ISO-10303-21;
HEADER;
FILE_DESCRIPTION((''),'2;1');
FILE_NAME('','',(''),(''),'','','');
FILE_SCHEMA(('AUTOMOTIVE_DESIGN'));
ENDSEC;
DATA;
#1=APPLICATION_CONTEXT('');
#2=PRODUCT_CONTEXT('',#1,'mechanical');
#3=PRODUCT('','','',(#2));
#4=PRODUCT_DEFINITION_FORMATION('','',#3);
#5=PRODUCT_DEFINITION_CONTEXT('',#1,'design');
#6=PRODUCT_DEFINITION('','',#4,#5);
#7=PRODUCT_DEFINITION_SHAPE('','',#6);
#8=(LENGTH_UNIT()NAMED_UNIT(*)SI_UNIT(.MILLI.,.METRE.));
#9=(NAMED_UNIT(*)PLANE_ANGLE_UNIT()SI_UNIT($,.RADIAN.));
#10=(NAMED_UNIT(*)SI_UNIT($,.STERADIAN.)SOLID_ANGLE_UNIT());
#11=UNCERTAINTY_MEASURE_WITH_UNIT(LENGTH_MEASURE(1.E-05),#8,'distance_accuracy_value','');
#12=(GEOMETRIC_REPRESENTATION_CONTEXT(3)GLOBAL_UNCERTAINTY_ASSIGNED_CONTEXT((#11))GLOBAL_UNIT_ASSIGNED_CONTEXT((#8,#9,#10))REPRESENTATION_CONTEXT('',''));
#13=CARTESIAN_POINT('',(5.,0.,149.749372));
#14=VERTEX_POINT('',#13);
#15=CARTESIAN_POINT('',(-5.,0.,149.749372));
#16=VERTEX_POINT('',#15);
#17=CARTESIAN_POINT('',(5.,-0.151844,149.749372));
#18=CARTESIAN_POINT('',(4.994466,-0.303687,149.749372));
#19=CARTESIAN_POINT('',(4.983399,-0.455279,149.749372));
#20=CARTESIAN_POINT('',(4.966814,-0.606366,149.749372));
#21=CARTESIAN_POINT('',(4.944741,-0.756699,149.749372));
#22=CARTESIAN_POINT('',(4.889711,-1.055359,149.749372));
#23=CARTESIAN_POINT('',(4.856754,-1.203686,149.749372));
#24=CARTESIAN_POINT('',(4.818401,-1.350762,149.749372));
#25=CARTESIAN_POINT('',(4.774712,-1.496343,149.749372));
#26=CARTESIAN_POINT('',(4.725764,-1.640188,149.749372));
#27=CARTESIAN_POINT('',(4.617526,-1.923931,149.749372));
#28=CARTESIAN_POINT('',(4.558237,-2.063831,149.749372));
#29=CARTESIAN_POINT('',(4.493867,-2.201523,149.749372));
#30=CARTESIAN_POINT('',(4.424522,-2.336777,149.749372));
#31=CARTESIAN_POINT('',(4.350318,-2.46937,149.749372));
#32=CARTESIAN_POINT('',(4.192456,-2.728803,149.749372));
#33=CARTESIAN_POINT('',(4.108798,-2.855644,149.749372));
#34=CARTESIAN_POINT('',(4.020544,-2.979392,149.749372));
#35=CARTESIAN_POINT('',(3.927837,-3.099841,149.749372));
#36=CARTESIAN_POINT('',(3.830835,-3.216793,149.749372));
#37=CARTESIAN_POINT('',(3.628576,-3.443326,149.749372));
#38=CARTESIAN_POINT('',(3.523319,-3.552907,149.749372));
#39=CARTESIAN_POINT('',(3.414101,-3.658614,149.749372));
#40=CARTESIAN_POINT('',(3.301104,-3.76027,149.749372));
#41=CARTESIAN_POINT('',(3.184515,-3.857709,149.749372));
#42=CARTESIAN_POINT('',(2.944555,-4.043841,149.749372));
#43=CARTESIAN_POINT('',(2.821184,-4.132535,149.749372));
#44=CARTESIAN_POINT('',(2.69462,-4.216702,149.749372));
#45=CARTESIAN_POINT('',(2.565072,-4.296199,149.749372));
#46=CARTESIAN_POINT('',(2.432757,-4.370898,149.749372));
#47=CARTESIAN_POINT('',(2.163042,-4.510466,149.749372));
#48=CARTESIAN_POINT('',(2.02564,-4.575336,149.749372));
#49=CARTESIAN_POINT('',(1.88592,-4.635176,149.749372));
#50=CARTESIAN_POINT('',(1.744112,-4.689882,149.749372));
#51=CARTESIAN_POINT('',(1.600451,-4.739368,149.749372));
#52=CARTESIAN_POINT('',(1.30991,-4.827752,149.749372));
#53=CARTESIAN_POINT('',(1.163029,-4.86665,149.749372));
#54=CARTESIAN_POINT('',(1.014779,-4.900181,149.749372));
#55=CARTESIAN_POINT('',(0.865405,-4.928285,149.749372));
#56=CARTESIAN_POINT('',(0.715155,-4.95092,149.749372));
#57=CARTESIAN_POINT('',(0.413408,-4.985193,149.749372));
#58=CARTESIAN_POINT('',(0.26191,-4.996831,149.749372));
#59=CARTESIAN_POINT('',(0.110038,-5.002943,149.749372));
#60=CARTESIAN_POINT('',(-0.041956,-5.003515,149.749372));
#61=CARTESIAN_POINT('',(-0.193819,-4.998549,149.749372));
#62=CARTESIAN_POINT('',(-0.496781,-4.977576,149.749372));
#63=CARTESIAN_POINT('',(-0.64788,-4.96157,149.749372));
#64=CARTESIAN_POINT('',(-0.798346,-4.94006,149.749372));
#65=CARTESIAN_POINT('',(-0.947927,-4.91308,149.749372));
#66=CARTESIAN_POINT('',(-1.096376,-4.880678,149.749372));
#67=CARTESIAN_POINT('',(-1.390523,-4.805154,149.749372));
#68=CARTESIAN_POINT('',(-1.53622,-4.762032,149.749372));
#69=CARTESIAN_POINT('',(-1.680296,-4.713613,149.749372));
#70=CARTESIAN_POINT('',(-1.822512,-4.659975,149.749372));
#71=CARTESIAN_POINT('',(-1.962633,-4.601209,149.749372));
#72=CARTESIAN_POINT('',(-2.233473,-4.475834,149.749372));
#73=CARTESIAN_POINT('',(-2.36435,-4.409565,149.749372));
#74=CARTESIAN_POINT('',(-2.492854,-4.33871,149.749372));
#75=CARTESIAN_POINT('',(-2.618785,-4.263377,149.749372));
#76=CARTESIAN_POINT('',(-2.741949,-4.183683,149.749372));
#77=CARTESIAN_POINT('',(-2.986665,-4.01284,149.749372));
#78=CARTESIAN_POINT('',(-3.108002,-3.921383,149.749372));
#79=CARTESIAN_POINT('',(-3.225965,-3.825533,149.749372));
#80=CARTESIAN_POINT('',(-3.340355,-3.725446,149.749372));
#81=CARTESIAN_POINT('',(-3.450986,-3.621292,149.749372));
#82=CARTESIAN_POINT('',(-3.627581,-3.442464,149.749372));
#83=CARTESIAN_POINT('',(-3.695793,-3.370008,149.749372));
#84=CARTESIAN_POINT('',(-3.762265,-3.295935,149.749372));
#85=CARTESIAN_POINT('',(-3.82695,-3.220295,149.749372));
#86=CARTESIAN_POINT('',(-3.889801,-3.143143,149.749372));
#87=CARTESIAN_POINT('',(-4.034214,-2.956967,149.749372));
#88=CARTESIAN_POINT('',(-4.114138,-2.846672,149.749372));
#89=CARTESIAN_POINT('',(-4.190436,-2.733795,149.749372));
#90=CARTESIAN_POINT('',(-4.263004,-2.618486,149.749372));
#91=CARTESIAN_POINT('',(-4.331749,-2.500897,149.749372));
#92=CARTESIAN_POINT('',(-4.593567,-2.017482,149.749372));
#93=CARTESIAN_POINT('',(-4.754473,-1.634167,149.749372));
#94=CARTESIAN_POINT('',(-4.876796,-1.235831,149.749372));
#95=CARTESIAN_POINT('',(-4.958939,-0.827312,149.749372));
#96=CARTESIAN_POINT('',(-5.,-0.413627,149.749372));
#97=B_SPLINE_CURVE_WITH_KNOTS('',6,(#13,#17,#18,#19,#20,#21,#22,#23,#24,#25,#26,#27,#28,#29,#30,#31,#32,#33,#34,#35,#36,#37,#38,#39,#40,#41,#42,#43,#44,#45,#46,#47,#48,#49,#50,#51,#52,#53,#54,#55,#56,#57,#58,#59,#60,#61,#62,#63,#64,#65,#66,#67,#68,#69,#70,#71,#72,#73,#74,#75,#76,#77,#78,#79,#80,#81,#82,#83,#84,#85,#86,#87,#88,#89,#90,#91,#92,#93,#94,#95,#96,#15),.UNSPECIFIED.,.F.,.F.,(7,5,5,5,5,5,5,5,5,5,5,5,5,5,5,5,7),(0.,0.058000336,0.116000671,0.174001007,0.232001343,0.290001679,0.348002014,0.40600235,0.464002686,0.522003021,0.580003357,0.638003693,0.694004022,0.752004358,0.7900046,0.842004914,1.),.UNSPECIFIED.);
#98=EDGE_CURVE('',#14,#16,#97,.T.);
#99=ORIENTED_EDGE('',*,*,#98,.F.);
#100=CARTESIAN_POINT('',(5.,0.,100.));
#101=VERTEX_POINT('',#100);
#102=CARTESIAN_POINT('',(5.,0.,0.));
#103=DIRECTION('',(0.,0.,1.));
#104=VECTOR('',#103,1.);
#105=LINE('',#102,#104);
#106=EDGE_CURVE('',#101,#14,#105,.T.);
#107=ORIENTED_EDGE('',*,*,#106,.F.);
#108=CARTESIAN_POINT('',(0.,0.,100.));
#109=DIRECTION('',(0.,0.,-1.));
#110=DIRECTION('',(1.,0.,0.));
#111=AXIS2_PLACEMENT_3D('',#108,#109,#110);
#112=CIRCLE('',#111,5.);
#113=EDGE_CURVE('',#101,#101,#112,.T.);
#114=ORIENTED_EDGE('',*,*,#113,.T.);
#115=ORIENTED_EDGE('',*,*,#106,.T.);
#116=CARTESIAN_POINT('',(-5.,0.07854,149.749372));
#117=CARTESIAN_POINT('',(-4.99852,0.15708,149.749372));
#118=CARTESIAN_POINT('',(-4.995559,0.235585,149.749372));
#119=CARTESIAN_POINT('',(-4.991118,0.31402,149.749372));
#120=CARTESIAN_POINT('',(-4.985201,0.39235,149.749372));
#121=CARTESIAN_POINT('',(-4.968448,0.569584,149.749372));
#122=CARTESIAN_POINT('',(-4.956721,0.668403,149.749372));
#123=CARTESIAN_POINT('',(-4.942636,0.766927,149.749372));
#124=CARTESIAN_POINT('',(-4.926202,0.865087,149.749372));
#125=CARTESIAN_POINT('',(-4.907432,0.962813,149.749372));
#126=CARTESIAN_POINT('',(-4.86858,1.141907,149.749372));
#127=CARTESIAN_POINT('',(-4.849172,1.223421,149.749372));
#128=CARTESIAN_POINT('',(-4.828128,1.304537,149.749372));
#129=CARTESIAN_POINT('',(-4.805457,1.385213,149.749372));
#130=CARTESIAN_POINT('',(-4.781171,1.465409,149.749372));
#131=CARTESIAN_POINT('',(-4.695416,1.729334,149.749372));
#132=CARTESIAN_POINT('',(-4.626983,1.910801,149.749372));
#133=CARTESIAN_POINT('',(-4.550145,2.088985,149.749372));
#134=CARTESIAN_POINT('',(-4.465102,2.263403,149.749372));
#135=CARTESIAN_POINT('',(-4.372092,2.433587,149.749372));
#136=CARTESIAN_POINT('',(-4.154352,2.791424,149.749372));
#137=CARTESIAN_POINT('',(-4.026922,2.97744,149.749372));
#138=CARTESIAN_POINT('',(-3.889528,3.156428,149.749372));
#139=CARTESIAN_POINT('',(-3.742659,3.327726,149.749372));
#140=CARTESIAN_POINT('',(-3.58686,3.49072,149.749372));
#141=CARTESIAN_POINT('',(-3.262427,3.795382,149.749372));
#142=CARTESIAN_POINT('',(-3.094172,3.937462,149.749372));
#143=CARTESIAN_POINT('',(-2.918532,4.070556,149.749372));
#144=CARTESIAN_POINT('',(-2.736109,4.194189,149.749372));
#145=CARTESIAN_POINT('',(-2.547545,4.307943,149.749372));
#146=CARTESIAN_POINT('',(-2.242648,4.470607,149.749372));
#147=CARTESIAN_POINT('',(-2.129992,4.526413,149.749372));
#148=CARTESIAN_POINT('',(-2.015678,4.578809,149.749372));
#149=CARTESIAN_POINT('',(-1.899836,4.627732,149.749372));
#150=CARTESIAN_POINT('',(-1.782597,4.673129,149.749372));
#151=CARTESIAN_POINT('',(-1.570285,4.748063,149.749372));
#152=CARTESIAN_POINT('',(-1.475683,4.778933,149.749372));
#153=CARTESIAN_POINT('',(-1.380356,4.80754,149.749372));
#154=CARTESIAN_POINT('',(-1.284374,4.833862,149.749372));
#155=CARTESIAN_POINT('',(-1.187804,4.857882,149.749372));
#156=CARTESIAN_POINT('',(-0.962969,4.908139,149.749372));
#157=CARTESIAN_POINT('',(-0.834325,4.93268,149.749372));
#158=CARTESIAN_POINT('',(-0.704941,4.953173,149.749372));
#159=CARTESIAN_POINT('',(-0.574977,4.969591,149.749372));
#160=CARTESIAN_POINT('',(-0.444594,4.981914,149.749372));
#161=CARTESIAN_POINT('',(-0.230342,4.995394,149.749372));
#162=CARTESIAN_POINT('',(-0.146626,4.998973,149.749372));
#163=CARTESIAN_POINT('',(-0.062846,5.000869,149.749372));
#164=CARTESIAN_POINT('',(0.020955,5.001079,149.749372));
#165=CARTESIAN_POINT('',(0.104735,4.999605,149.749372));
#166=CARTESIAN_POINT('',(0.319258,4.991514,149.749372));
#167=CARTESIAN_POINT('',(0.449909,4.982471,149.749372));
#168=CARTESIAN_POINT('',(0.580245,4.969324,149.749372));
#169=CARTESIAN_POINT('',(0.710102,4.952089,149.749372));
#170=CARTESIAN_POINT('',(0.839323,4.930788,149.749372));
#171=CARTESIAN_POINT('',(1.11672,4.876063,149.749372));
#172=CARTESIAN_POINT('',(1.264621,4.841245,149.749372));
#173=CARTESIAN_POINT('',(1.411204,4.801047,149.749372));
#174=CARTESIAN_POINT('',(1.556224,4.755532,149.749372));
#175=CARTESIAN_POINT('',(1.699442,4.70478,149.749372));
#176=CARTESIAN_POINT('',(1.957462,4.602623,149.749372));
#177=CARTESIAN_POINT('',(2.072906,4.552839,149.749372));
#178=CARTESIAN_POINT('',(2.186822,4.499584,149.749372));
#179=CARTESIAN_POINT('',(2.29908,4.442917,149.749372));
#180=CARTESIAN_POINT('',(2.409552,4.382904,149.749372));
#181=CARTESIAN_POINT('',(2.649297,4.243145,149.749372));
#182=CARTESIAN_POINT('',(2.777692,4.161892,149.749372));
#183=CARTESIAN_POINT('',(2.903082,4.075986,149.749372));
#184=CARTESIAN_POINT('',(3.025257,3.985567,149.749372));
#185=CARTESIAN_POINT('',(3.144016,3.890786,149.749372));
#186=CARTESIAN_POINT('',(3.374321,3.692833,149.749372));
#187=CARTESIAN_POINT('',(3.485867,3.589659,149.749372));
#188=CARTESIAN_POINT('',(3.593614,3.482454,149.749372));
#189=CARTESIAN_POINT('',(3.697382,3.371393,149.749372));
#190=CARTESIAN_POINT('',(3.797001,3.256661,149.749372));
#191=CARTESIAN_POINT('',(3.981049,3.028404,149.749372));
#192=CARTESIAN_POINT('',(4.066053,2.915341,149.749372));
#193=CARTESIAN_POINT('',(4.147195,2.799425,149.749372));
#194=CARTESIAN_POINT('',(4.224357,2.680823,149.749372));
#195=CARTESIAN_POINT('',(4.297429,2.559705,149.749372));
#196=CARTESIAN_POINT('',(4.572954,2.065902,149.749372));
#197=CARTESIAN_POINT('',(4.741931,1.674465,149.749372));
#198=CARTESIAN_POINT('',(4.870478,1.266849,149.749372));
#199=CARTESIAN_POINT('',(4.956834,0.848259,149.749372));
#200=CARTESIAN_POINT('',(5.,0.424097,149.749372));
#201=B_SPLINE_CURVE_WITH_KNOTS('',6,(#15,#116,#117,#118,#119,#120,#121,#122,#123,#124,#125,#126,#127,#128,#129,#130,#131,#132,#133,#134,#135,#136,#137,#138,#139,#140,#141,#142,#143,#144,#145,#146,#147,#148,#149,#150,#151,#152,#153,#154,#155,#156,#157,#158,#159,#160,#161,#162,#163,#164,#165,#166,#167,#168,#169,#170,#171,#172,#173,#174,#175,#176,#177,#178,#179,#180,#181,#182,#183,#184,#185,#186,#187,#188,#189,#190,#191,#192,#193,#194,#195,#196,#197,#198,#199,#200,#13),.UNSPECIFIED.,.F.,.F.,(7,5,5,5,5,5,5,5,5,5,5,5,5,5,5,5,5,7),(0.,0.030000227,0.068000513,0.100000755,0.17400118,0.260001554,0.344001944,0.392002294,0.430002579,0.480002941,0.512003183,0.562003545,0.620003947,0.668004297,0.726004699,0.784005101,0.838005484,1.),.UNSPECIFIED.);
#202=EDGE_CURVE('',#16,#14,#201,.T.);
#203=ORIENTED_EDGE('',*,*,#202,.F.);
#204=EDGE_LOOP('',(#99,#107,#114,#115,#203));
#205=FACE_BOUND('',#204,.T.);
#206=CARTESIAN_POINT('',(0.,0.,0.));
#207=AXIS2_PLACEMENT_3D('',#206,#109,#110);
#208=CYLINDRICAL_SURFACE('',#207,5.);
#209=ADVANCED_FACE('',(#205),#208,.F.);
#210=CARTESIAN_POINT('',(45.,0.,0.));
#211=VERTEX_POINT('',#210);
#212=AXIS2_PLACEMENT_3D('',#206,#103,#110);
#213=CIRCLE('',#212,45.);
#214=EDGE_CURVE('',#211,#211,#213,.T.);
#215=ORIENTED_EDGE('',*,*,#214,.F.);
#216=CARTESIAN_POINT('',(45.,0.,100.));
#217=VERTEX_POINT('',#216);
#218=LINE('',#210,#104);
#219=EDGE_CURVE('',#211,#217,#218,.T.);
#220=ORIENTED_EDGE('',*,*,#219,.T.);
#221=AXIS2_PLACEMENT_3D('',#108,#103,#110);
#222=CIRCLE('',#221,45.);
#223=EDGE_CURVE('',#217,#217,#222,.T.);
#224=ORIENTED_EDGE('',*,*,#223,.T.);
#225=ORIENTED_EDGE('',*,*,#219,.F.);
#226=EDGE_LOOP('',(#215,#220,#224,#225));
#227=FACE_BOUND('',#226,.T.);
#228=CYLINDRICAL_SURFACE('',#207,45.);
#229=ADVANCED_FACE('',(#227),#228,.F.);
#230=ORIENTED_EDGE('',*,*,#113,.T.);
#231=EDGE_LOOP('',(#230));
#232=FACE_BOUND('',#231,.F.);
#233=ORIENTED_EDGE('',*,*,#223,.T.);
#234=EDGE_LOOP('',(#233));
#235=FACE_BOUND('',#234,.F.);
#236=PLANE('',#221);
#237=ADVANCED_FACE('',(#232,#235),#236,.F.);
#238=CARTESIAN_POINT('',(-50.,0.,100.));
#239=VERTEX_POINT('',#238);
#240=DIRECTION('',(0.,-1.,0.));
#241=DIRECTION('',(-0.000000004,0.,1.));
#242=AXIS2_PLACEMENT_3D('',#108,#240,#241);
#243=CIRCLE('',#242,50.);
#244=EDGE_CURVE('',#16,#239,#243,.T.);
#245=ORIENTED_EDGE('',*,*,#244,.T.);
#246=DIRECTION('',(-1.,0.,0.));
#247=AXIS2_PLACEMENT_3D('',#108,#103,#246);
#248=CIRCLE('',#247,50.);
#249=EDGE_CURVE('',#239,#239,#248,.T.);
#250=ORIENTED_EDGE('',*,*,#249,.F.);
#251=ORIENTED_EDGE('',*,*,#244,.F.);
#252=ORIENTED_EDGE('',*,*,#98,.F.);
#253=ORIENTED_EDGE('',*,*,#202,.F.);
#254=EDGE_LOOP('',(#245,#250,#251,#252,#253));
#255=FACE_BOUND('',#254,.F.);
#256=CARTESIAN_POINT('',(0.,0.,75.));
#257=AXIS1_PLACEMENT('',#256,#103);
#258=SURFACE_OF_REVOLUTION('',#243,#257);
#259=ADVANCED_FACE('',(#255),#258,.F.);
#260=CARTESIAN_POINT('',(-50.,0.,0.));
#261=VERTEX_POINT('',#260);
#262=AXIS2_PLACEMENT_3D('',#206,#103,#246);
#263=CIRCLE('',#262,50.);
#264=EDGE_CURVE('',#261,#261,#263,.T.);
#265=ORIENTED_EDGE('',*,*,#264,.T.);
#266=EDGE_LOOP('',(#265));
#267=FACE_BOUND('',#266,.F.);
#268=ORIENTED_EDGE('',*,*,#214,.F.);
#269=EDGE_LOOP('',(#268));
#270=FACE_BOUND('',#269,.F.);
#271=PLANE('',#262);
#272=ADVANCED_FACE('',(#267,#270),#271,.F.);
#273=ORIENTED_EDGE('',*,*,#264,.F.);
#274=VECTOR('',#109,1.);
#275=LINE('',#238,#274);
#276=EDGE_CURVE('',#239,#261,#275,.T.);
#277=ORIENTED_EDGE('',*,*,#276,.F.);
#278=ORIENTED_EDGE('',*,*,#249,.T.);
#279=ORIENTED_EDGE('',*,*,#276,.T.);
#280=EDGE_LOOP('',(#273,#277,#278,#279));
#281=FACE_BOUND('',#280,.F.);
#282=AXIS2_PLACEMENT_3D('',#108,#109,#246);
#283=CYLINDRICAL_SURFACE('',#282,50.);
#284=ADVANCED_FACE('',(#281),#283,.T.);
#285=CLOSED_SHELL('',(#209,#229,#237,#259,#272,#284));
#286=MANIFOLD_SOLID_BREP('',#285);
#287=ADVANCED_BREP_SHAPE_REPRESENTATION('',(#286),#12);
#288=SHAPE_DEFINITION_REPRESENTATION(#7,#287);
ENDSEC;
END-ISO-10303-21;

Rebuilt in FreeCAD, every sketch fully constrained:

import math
import FreeCAD as App
import Part
import Sketcher

doc = App.newDocument("Part")
body = doc.addObject("PartDesign::Body", "Body")

sketch1 = doc.addObject("Sketcher::SketchObject", "Sketch")
body.addObject(sketch1)
sketch1.AttachmentSupport = (doc.XZ_Plane, [""])
sketch1.MapMode = "FlatFace"
sketch1.addGeometry([
    Part.LineSegment(App.Vector(-50, 0, 0), App.Vector(0, 0, 0)),
    Part.LineSegment(App.Vector(0, 0, 0), App.Vector(0, 150, 0)),
    Part.ArcOfCircle(Part.Circle(App.Vector(0, 100, 0), App.Vector(0, 0, 1), 50), math.radians(90), math.radians(180)),
    Part.LineSegment(App.Vector(-50, 100, 0), App.Vector(-50, 0, 0)),
], False)
sketch1.addConstraint([
    Sketcher.Constraint("Coincident", 0, 2, 1, 1),
    Sketcher.Constraint("Coincident", 1, 2, 2, 1),
    Sketcher.Constraint("Tangent", 2, 2, 3, 1),
    Sketcher.Constraint("Coincident", 3, 2, 0, 1),
    Sketcher.Constraint("Horizontal", 0),
    Sketcher.Constraint("Vertical", 1),
    Sketcher.Constraint("Vertical", 3),
    Sketcher.Constraint("Coincident", 0, 2, -1, 1),
    Sketcher.Constraint("PointOnObject", 2, 3, -2),
    Sketcher.Constraint("Radius", 2, 50.0),
    Sketcher.Constraint("DistanceY", 1, 1, 1, 2, 150.0),
])
revolution = doc.addObject("PartDesign::Revolution", "Revolution")
body.addObject(revolution)
revolution.Profile = sketch1
revolution.ReferenceAxis = (sketch1, ["V_Axis"])
revolution.Angle = 360

sketch2 = doc.addObject("Sketcher::SketchObject", "Sketch001")
body.addObject(sketch2)
sketch2.AttachmentSupport = (doc.XY_Plane, [""])
sketch2.MapMode = "FlatFace"
sketch2.addGeometry(Part.Circle(App.Vector(0, 0, 0), App.Vector(0, 0, 1), 45), False)
sketch2.addConstraint([
    Sketcher.Constraint("Coincident", 0, 3, -1, 1),
    Sketcher.Constraint("Diameter", 0, 90.0),
])
pocket1 = doc.addObject("PartDesign::Pocket", "Pocket")
body.addObject(pocket1)
pocket1.Profile = sketch2
pocket1.Length = 100
pocket1.Reversed = True

sketch3 = doc.addObject("Sketcher::SketchObject", "Sketch002")
body.addObject(sketch3)
sketch3.AttachmentSupport = (doc.XY_Plane, [""])
sketch3.MapMode = "FlatFace"
sketch3.addGeometry(Part.Circle(App.Vector(0, 0, 0), App.Vector(0, 0, 1), 5), False)
sketch3.addConstraint([
    Sketcher.Constraint("Coincident", 0, 3, -1, 1),
    Sketcher.Constraint("Diameter", 0, 10.0),
])
pocket2 = doc.addObject("PartDesign::Pocket", "Pocket001")
body.addObject(pocket2)
pocket2.Profile = sketch3
pocket2.Type = "ThroughAll"
pocket2.Reversed = True

doc.recompute()
